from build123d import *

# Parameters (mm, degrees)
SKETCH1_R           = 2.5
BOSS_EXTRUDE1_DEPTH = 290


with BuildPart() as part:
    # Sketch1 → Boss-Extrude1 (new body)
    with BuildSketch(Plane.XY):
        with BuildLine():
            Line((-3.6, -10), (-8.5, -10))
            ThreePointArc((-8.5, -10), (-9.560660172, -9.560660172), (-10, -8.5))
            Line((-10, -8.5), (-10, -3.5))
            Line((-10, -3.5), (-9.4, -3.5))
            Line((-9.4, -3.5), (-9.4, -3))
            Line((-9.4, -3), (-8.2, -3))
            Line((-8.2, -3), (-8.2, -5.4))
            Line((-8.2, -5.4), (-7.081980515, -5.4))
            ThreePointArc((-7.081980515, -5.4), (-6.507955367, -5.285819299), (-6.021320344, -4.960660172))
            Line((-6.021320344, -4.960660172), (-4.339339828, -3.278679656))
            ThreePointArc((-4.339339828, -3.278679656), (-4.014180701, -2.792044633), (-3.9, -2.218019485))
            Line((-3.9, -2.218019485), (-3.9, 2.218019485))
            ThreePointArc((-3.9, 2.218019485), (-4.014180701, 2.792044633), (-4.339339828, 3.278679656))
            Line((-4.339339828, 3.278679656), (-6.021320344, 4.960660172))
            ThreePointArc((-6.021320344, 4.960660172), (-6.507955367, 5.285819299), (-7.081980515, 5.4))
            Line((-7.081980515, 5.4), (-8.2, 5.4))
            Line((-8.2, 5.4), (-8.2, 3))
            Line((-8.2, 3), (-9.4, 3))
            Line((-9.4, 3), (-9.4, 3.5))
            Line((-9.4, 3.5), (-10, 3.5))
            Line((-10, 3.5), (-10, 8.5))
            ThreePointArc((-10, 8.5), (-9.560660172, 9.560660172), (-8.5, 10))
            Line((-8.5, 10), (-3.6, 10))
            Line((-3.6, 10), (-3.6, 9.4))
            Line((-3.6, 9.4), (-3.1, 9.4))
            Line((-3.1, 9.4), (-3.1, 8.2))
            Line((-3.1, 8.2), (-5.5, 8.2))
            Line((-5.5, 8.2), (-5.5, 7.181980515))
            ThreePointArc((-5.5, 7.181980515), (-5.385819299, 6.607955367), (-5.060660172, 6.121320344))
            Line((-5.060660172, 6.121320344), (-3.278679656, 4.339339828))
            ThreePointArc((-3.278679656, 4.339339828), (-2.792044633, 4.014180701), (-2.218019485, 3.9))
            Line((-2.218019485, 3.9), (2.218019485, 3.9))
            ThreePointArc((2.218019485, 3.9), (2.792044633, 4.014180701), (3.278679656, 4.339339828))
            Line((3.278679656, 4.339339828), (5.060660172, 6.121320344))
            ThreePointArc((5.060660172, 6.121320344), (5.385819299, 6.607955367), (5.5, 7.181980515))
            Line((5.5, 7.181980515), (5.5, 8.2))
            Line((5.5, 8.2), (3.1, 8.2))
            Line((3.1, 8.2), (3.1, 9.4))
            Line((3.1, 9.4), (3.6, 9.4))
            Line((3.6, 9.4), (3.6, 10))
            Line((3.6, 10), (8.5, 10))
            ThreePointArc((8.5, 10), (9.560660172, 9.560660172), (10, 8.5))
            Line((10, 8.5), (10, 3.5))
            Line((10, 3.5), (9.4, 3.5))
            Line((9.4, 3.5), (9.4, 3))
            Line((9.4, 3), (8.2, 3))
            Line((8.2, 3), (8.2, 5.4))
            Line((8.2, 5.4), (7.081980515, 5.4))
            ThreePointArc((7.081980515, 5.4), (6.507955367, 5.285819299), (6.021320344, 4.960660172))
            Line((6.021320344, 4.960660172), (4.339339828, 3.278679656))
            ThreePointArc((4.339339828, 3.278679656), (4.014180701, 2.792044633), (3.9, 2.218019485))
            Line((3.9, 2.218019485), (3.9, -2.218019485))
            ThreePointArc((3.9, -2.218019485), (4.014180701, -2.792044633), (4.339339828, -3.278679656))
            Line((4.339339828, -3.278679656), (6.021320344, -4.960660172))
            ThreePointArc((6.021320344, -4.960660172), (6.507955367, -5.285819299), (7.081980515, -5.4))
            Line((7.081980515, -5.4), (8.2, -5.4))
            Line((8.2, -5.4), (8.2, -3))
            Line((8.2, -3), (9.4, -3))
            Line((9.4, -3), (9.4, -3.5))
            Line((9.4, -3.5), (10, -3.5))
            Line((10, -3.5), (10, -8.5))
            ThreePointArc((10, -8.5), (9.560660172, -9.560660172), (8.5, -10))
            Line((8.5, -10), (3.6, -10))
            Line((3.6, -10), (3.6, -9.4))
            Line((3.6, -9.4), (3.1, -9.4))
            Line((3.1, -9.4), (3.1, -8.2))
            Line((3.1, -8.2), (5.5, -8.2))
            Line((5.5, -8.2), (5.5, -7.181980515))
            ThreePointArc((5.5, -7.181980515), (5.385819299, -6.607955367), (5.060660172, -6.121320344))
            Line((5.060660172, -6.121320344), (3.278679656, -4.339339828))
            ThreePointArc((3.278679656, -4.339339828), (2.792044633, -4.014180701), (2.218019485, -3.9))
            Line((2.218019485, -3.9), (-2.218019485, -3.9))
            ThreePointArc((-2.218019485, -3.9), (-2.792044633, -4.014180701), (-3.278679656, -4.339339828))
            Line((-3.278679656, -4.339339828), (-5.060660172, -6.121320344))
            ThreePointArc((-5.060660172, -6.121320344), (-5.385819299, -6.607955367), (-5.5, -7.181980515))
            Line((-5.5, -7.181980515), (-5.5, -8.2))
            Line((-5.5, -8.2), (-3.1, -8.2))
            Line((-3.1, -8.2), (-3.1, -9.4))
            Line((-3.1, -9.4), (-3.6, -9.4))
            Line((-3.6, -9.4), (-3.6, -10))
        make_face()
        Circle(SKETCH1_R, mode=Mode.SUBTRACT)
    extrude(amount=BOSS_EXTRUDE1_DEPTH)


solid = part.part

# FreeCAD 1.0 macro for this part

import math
import FreeCAD as App
import Part
import Sketcher
from FreeCAD import Vector
Q = App.Units.Quantity

doc = App.newDocument("Part")
body = doc.addObject("PartDesign::Body", "Body")

# Sketch on XY plane
sketch1 = doc.addObject("Sketcher::SketchObject", "Sketch")
body.addObject(sketch1)
sketch1.AttachmentSupport = (doc.XY_Plane, [""])
sketch1.MapMode = "FlatFace"
sketch1.addGeometry([
    Part.LineSegment(Vector(-8.5, -10, 0), Vector(-3.6, -10, 0)),  # 0
    Part.LineSegment(Vector(-3.6, -10, 0), Vector(-3.6, -9.4, 0)),  # 1
    Part.LineSegment(Vector(-3.6, -9.4, 0), Vector(-3.1, -9.4, 0)),  # 2
    Part.LineSegment(Vector(-3.1, -9.4, 0), Vector(-3.1, -8.2, 0)),  # 3
    Part.LineSegment(Vector(-3.1, -8.2, 0), Vector(-5.5, -8.2, 0)),  # 4
    Part.LineSegment(Vector(-5.5, -8.2, 0), Vector(-5.5, -7.2, 0)),  # 5
    Part.ArcOfCircle(Part.Circle(Vector(-4, -7.2, 0), Vector(0, 0, 1), 1.5), math.radians(135), math.radians(180)),  # 6
    Part.LineSegment(Vector(-5.1, -6.1, 0), Vector(-3.3, -4.3, 0)),  # 7
    Part.ArcOfCircle(Part.Circle(Vector(-2.2, -5.4, 0), Vector(0, 0, 1), 1.5), math.radians(90), math.radians(135)),  # 8
    Part.LineSegment(Vector(-2.2, -3.9, 0), Vector(2.2, -3.9, 0)),  # 9
    Part.ArcOfCircle(Part.Circle(Vector(2.2, -5.4, 0), Vector(0, 0, 1), 1.5), math.radians(45), math.radians(90)),  # 10
    Part.LineSegment(Vector(3.3, -4.3, 0), Vector(5.1, -6.1, 0)),  # 11
    Part.ArcOfCircle(Part.Circle(Vector(4, -7.2, 0), Vector(0, 0, 1), 1.5), math.radians(0), math.radians(45)),  # 12
    Part.LineSegment(Vector(5.5, -7.2, 0), Vector(5.5, -8.2, 0)),  # 13
    Part.LineSegment(Vector(5.5, -8.2, 0), Vector(3.1, -8.2, 0)),  # 14
    Part.LineSegment(Vector(3.1, -8.2, 0), Vector(3.1, -9.4, 0)),  # 15
    Part.LineSegment(Vector(3.1, -9.4, 0), Vector(3.6, -9.4, 0)),  # 16
    Part.LineSegment(Vector(3.6, -9.4, 0), Vector(3.6, -10, 0)),  # 17
    Part.LineSegment(Vector(3.6, -10, 0), Vector(8.5, -10, 0)),  # 18
    Part.ArcOfCircle(Part.Circle(Vector(8.5, -8.5, 0), Vector(0, 0, 1), 1.5), math.radians(-90), math.radians(0)),  # 19
    Part.LineSegment(Vector(10, -8.5, 0), Vector(10, -3.5, 0)),  # 20
    Part.LineSegment(Vector(10, -3.5, 0), Vector(9.4, -3.5, 0)),  # 21
    Part.LineSegment(Vector(9.4, -3.5, 0), Vector(9.4, -3, 0)),  # 22
    Part.LineSegment(Vector(9.4, -3, 0), Vector(8.2, -3, 0)),  # 23
    Part.LineSegment(Vector(8.2, -3, 0), Vector(8.2, -5.4, 0)),  # 24
    Part.LineSegment(Vector(8.2, -5.4, 0), Vector(7.1, -5.4, 0)),  # 25
    Part.ArcOfCircle(Part.Circle(Vector(7.1, -3.9, 0), Vector(0, 0, 1), 1.5), math.radians(-135), math.radians(-90)),  # 26
    Part.LineSegment(Vector(6, -5, 0), Vector(4.3, -3.3, 0)),  # 27
    Part.ArcOfCircle(Part.Circle(Vector(5.4, -2.2, 0), Vector(0, 0, 1), 1.5), math.radians(180), math.radians(225)),  # 28
    Part.LineSegment(Vector(3.9, -2.2, 0), Vector(3.9, 2.2, 0)),  # 29
    Part.ArcOfCircle(Part.Circle(Vector(5.4, 2.2, 0), Vector(0, 0, 1), 1.5), math.radians(135), math.radians(180)),  # 30
    Part.LineSegment(Vector(4.3, 3.3, 0), Vector(6, 5, 0)),  # 31
    Part.ArcOfCircle(Part.Circle(Vector(7.1, 3.9, 0), Vector(0, 0, 1), 1.5), math.radians(90), math.radians(135)),  # 32
    Part.LineSegment(Vector(7.1, 5.4, 0), Vector(8.2, 5.4, 0)),  # 33
    Part.LineSegment(Vector(8.2, 5.4, 0), Vector(8.2, 3, 0)),  # 34
    Part.LineSegment(Vector(8.2, 3, 0), Vector(9.4, 3, 0)),  # 35
    Part.LineSegment(Vector(9.4, 3, 0), Vector(9.4, 3.5, 0)),  # 36
    Part.LineSegment(Vector(9.4, 3.5, 0), Vector(10, 3.5, 0)),  # 37
    Part.LineSegment(Vector(10, 3.5, 0), Vector(10, 8.5, 0)),  # 38
    Part.ArcOfCircle(Part.Circle(Vector(8.5, 8.5, 0), Vector(0, 0, 1), 1.5), math.radians(0), math.radians(90)),  # 39
    Part.LineSegment(Vector(8.5, 10, 0), Vector(3.6, 10, 0)),  # 40
    Part.LineSegment(Vector(3.6, 10, 0), Vector(3.6, 9.4, 0)),  # 41
    Part.LineSegment(Vector(3.6, 9.4, 0), Vector(3.1, 9.4, 0)),  # 42
    Part.LineSegment(Vector(3.1, 9.4, 0), Vector(3.1, 8.2, 0)),  # 43
    Part.LineSegment(Vector(3.1, 8.2, 0), Vector(5.5, 8.2, 0)),  # 44
    Part.LineSegment(Vector(5.5, 8.2, 0), Vector(5.5, 7.2, 0)),  # 45
    Part.ArcOfCircle(Part.Circle(Vector(4, 7.2, 0), Vector(0, 0, 1), 1.5), math.radians(-45), math.radians(0)),  # 46
    Part.LineSegment(Vector(5.1, 6.1, 0), Vector(3.3, 4.3, 0)),  # 47
    Part.ArcOfCircle(Part.Circle(Vector(2.2, 5.4, 0), Vector(0, 0, 1), 1.5), math.radians(-90), math.radians(-45)),  # 48
    Part.LineSegment(Vector(2.2, 3.9, 0), Vector(-2.2, 3.9, 0)),  # 49
    Part.ArcOfCircle(Part.Circle(Vector(-2.2, 5.4, 0), Vector(0, 0, 1), 1.5), math.radians(-135), math.radians(-90)),  # 50
    Part.LineSegment(Vector(-3.3, 4.3, 0), Vector(-5.1, 6.1, 0)),  # 51
    Part.ArcOfCircle(Part.Circle(Vector(-4, 7.2, 0), Vector(0, 0, 1), 1.5), math.radians(180), math.radians(225)),  # 52
    Part.LineSegment(Vector(-5.5, 7.2, 0), Vector(-5.5, 8.2, 0)),  # 53
    Part.LineSegment(Vector(-5.5, 8.2, 0), Vector(-3.1, 8.2, 0)),  # 54
    Part.LineSegment(Vector(-3.1, 8.2, 0), Vector(-3.1, 9.4, 0)),  # 55
    Part.LineSegment(Vector(-3.1, 9.4, 0), Vector(-3.6, 9.4, 0)),  # 56
    Part.LineSegment(Vector(-3.6, 9.4, 0), Vector(-3.6, 10, 0)),  # 57
    Part.LineSegment(Vector(-3.6, 10, 0), Vector(-8.5, 10, 0)),  # 58
    Part.ArcOfCircle(Part.Circle(Vector(-8.5, 8.5, 0), Vector(0, 0, 1), 1.5), math.radians(90), math.radians(180)),  # 59
    Part.LineSegment(Vector(-10, 8.5, 0), Vector(-10, 3.5, 0)),  # 60
    Part.LineSegment(Vector(-10, 3.5, 0), Vector(-9.4, 3.5, 0)),  # 61
    Part.LineSegment(Vector(-9.4, 3.5, 0), Vector(-9.4, 3, 0)),  # 62
    Part.LineSegment(Vector(-9.4, 3, 0), Vector(-8.2, 3, 0)),  # 63
    Part.LineSegment(Vector(-8.2, 3, 0), Vector(-8.2, 5.4, 0)),  # 64
    Part.LineSegment(Vector(-8.2, 5.4, 0), Vector(-7.1, 5.4, 0)),  # 65
    Part.ArcOfCircle(Part.Circle(Vector(-7.1, 3.9, 0), Vector(0, 0, 1), 1.5), math.radians(45), math.radians(90)),  # 66
    Part.LineSegment(Vector(-6, 5, 0), Vector(-4.3, 3.3, 0)),  # 67
    Part.ArcOfCircle(Part.Circle(Vector(-5.4, 2.2, 0), Vector(0, 0, 1), 1.5), math.radians(0), math.radians(45)),  # 68
    Part.LineSegment(Vector(-3.9, 2.2, 0), Vector(-3.9, -2.2, 0)),  # 69
    Part.ArcOfCircle(Part.Circle(Vector(-5.4, -2.2, 0), Vector(0, 0, 1), 1.5), math.radians(-45), math.radians(0)),  # 70
    Part.LineSegment(Vector(-4.3, -3.3, 0), Vector(-6, -5, 0)),  # 71
    Part.ArcOfCircle(Part.Circle(Vector(-7.1, -3.9, 0), Vector(0, 0, 1), 1.5), math.radians(-90), math.radians(-45)),  # 72
    Part.LineSegment(Vector(-7.1, -5.4, 0), Vector(-8.2, -5.4, 0)),  # 73
    Part.LineSegment(Vector(-8.2, -5.4, 0), Vector(-8.2, -3, 0)),  # 74
    Part.LineSegment(Vector(-8.2, -3, 0), Vector(-9.4, -3, 0)),  # 75
    Part.LineSegment(Vector(-9.4, -3, 0), Vector(-9.4, -3.5, 0)),  # 76
    Part.LineSegment(Vector(-9.4, -3.5, 0), Vector(-10, -3.5, 0)),  # 77
    Part.LineSegment(Vector(-10, -3.5, 0), Vector(-10, -8.5, 0)),  # 78
    Part.ArcOfCircle(Part.Circle(Vector(-8.5, -8.5, 0), Vector(0, 0, 1), 1.5), math.radians(180), math.radians(270)),  # 79
    Part.Circle(Vector(0, 0, 0), Vector(0, 0, 1), 2.5),  # 80
], False)
sketch1.addConstraint([
    Sketcher.Constraint("Coincident", 0, 2, 1, 1),
    Sketcher.Constraint("Coincident", 1, 2, 2, 1),
    Sketcher.Constraint("Coincident", 2, 2, 3, 1),
    Sketcher.Constraint("Coincident", 3, 2, 4, 1),
    Sketcher.Constraint("Coincident", 4, 2, 5, 1),
    Sketcher.Constraint("Tangent", 5, 2, 6, 2),
    Sketcher.Constraint("Tangent", 6, 1, 7, 1),
    Sketcher.Constraint("Tangent", 7, 2, 8, 2),
    Sketcher.Constraint("Tangent", 8, 1, 9, 1),
    Sketcher.Constraint("Tangent", 9, 2, 10, 2),
    Sketcher.Constraint("Tangent", 10, 1, 11, 1),
    Sketcher.Constraint("Tangent", 11, 2, 12, 2),
    Sketcher.Constraint("Tangent", 12, 1, 13, 1),
    Sketcher.Constraint("Coincident", 13, 2, 14, 1),
    Sketcher.Constraint("Coincident", 14, 2, 15, 1),
    Sketcher.Constraint("Coincident", 15, 2, 16, 1),
    Sketcher.Constraint("Coincident", 16, 2, 17, 1),
    Sketcher.Constraint("Coincident", 17, 2, 18, 1),
    Sketcher.Constraint("Tangent", 18, 2, 19, 1),
    Sketcher.Constraint("Tangent", 19, 2, 20, 1),
    Sketcher.Constraint("Coincident", 20, 2, 21, 1),
    Sketcher.Constraint("Coincident", 21, 2, 22, 1),
    Sketcher.Constraint("Coincident", 22, 2, 23, 1),
    Sketcher.Constraint("Coincident", 23, 2, 24, 1),
    Sketcher.Constraint("Coincident", 24, 2, 25, 1),
    Sketcher.Constraint("Tangent", 25, 2, 26, 2),
    Sketcher.Constraint("Tangent", 26, 1, 27, 1),
    Sketcher.Constraint("Tangent", 27, 2, 28, 2),
    Sketcher.Constraint("Tangent", 28, 1, 29, 1),
    Sketcher.Constraint("Tangent", 29, 2, 30, 2),
    Sketcher.Constraint("Tangent", 30, 1, 31, 1),
    Sketcher.Constraint("Tangent", 31, 2, 32, 2),
    Sketcher.Constraint("Tangent", 32, 1, 33, 1),
    Sketcher.Constraint("Coincident", 33, 2, 34, 1),
    Sketcher.Constraint("Coincident", 34, 2, 35, 1),
    Sketcher.Constraint("Coincident", 35, 2, 36, 1),
    Sketcher.Constraint("Coincident", 36, 2, 37, 1),
    Sketcher.Constraint("Coincident", 37, 2, 38, 1),
    Sketcher.Constraint("Tangent", 38, 2, 39, 1),
    Sketcher.Constraint("Tangent", 39, 2, 40, 1),
    Sketcher.Constraint("Coincident", 40, 2, 41, 1),
    Sketcher.Constraint("Coincident", 41, 2, 42, 1),
    Sketcher.Constraint("Coincident", 42, 2, 43, 1),
    Sketcher.Constraint("Coincident", 43, 2, 44, 1),
    Sketcher.Constraint("Coincident", 44, 2, 45, 1),
    Sketcher.Constraint("Tangent", 45, 2, 46, 2),
    Sketcher.Constraint("Tangent", 46, 1, 47, 1),
    Sketcher.Constraint("Tangent", 47, 2, 48, 2),
    Sketcher.Constraint("Tangent", 48, 1, 49, 1),
    Sketcher.Constraint("Tangent", 49, 2, 50, 2),
    Sketcher.Constraint("Tangent", 50, 1, 51, 1),
    Sketcher.Constraint("Tangent", 51, 2, 52, 2),
    Sketcher.Constraint("Tangent", 52, 1, 53, 1),
    Sketcher.Constraint("Coincident", 53, 2, 54, 1),
    Sketcher.Constraint("Coincident", 54, 2, 55, 1),
    Sketcher.Constraint("Coincident", 55, 2, 56, 1),
    Sketcher.Constraint("Coincident", 56, 2, 57, 1),
    Sketcher.Constraint("Coincident", 57, 2, 58, 1),
    Sketcher.Constraint("Tangent", 58, 2, 59, 1),
    Sketcher.Constraint("Tangent", 59, 2, 60, 1),
    Sketcher.Constraint("Coincident", 60, 2, 61, 1),
    Sketcher.Constraint("Coincident", 61, 2, 62, 1),
    Sketcher.Constraint("Coincident", 62, 2, 63, 1),
    Sketcher.Constraint("Coincident", 63, 2, 64, 1),
    Sketcher.Constraint("Coincident", 64, 2, 65, 1),
    Sketcher.Constraint("Tangent", 65, 2, 66, 2),
    Sketcher.Constraint("Tangent", 66, 1, 67, 1),
    Sketcher.Constraint("Tangent", 67, 2, 68, 2),
    Sketcher.Constraint("Tangent", 68, 1, 69, 1),
    Sketcher.Constraint("Tangent", 69, 2, 70, 2),
    Sketcher.Constraint("Tangent", 70, 1, 71, 1),
    Sketcher.Constraint("Tangent", 71, 2, 72, 2),
    Sketcher.Constraint("Tangent", 72, 1, 73, 1),
    Sketcher.Constraint("Coincident", 73, 2, 74, 1),
    Sketcher.Constraint("Coincident", 74, 2, 75, 1),
    Sketcher.Constraint("Coincident", 75, 2, 76, 1),
    Sketcher.Constraint("Coincident", 76, 2, 77, 1),
    Sketcher.Constraint("Coincident", 77, 2, 78, 1),
    Sketcher.Constraint("Tangent", 78, 2, 79, 1),
    Sketcher.Constraint("Tangent", 79, 2, 0, 1),
    Sketcher.Constraint("Horizontal", 0),
    Sketcher.Constraint("Vertical", 1),
    Sketcher.Constraint("Horizontal", 2),
    Sketcher.Constraint("Vertical", 3),
    Sketcher.Constraint("Horizontal", 4),
    Sketcher.Constraint("Vertical", 5),
    Sketcher.Constraint("Horizontal", 9),
    Sketcher.Constraint("Vertical", 13),
    Sketcher.Constraint("Horizontal", 14),
    Sketcher.Constraint("Vertical", 15),
    Sketcher.Constraint("Horizontal", 16),
    Sketcher.Constraint("Vertical", 17),
    Sketcher.Constraint("Horizontal", 18),
    Sketcher.Constraint("Vertical", 20),
    Sketcher.Constraint("Horizontal", 21),
    Sketcher.Constraint("Vertical", 22),
    Sketcher.Constraint("Horizontal", 23),
    Sketcher.Constraint("Vertical", 24),
    Sketcher.Constraint("Horizontal", 25),
    Sketcher.Constraint("Vertical", 29),
    Sketcher.Constraint("Horizontal", 33),
    Sketcher.Constraint("Vertical", 34),
    Sketcher.Constraint("Horizontal", 35),
    Sketcher.Constraint("Vertical", 36),
    Sketcher.Constraint("Horizontal", 37),
    Sketcher.Constraint("Vertical", 38),
    Sketcher.Constraint("Horizontal", 40),
    Sketcher.Constraint("Vertical", 41),
    Sketcher.Constraint("Horizontal", 42),
    Sketcher.Constraint("Vertical", 43),
    Sketcher.Constraint("Horizontal", 44),
    Sketcher.Constraint("Vertical", 45),
    Sketcher.Constraint("Horizontal", 49),
    Sketcher.Constraint("Vertical", 53),
    Sketcher.Constraint("Horizontal", 54),
    Sketcher.Constraint("Vertical", 55),
    Sketcher.Constraint("Horizontal", 56),
    Sketcher.Constraint("Vertical", 57),
    Sketcher.Constraint("Horizontal", 58),
    Sketcher.Constraint("Vertical", 60),
    Sketcher.Constraint("Horizontal", 61),
    Sketcher.Constraint("Vertical", 62),
    Sketcher.Constraint("Horizontal", 63),
    Sketcher.Constraint("Vertical", 64),
    Sketcher.Constraint("Horizontal", 65),
    Sketcher.Constraint("Vertical", 69),
    Sketcher.Constraint("Horizontal", 73),
    Sketcher.Constraint("Vertical", 74),
    Sketcher.Constraint("Horizontal", 75),
    Sketcher.Constraint("Vertical", 76),
    Sketcher.Constraint("Horizontal", 77),
    Sketcher.Constraint("Vertical", 78),
    Sketcher.Constraint("Coincident", 80, 3, -1, 1),
    Sketcher.Constraint("Equal", 6, 8),
    Sketcher.Constraint("Equal", 8, 10),
    Sketcher.Constraint("Equal", 10, 12),
    Sketcher.Constraint("Equal", 12, 19),
    Sketcher.Constraint("Equal", 19, 26),
    Sketcher.Constraint("Equal", 26, 28),
    Sketcher.Constraint("Equal", 28, 30),
    Sketcher.Constraint("Equal", 30, 32),
    Sketcher.Constraint("Equal", 32, 39),
    Sketcher.Constraint("Equal", 39, 46),
    Sketcher.Constraint("Equal", 46, 48),
    Sketcher.Constraint("Equal", 48, 50),
    Sketcher.Constraint("Equal", 50, 52),
    Sketcher.Constraint("Equal", 52, 59),
    Sketcher.Constraint("Equal", 59, 66),
    Sketcher.Constraint("Equal", 66, 68),
    Sketcher.Constraint("Equal", 68, 70),
    Sketcher.Constraint("Equal", 70, 72),
    Sketcher.Constraint("Equal", 72, 79),
    Sketcher.Constraint("Symmetric", 6, 3, 46, 3, -1, 1),
    Sketcher.Constraint("Symmetric", 8, 3, 48, 3, -1, 1),
    Sketcher.Constraint("Symmetric", 12, 3, 52, 3, -1, 1),
    Sketcher.Constraint("Symmetric", 19, 3, 59, 3, -1, 1),
    Sketcher.Constraint("Symmetric", 26, 3, 66, 3, -1, 1),
    Sketcher.Constraint("Symmetric", 28, 3, 68, 3, -1, 1),
    Sketcher.Constraint("Symmetric", 32, 3, 72, 3, -1, 1),
    Sketcher.Constraint("Symmetric", 39, 3, 79, 3, -1, 1),
    Sketcher.Constraint("Symmetric", 1, 2, 41, 2, -1, 1),
    Sketcher.Constraint("Symmetric", 3, 2, 43, 2, -1, 1),
    Sketcher.Constraint("Symmetric", 14, 2, 54, 2, -1, 1),
    Sketcher.Constraint("Symmetric", 16, 2, 56, 2, -1, 1),
    Sketcher.Constraint("Symmetric", 21, 2, 61, 2, -1, 1),
    Sketcher.Constraint("Symmetric", 23, 2, 63, 2, -1, 1),
    Sketcher.Constraint("Symmetric", 34, 2, 74, 2, -1, 1),
    Sketcher.Constraint("Symmetric", 36, 2, 76, 2, -1, 1),
    Sketcher.Constraint("Symmetric", 6, 3, 12, 3, -2),
    Sketcher.Constraint("Symmetric", 39, 3, 59, 3, -2),
    Sketcher.Constraint("Symmetric", 32, 3, 66, 3, -2),
    Sketcher.Constraint("Symmetric", 3, 2, 14, 2, -2),
    Sketcher.Constraint("Symmetric", 1, 2, 16, 2, -2),
    Sketcher.Constraint("Symmetric", 36, 2, 61, 2, -2),
    Sketcher.Constraint("Symmetric", 34, 2, 63, 2, -2),
    Sketcher.Constraint("Perpendicular", 7, 11),
    Sketcher.Constraint("Parallel", 11, 27),
    Sketcher.Constraint("Perpendicular", 27, 31),
    Sketcher.Constraint("Perpendicular", 47, 51),
    Sketcher.Constraint("Perpendicular", 67, 71),
    Sketcher.Constraint("Horizontal", 30, 3, 68, 3),
    Sketcher.Constraint("Horizontal", 72, 3, 8, 1),
    Sketcher.Constraint("Equal", 77, 1),
    Sketcher.Constraint("Equal", 75, 3),
    Sketcher.Constraint("Equal", 56, 22),
    Sketcher.Constraint("Equal", 54, 24),
    Sketcher.Constraint("Equal", 49, 29),
    Sketcher.Constraint("Diameter", 80, Q("5 mm")),
    Sketcher.Constraint("Radius", 6, Q("1.5 mm")),
    Sketcher.Constraint("DistanceY", 20, 1, 20, 2, Q("5 mm")),
    Sketcher.Constraint("DistanceX", 0, 1, 0, 2, Q("4.9 mm")),
    Sketcher.Constraint("DistanceX", 2, 1, 2, 2, Q("0.5 mm")),
    Sketcher.Constraint("DistanceX", 4, 2, 4, 1, Q("2.4 mm")),
    Sketcher.Constraint("DistanceX", 21, 2, 21, 1, Q("0.6 mm")),
    Sketcher.Constraint("DistanceX", 23, 2, 23, 1, Q("1.2 mm")),
    Sketcher.Constraint("DistanceX", 6, 3, -1, 1, Q("4 mm")),
    Sketcher.Constraint("DistanceY", 0, 2, -1, 1, Q("10 mm")),
    Sketcher.Constraint("DistanceX", -1, 1, 28, 3, Q("5.4 mm")),
    Sketcher.Constraint("Distance", 7, Q("2.520101 mm")),
])
pad1 = doc.addObject("PartDesign::Pad", "Pad")
body.addObject(pad1)
pad1.Profile = sketch1
pad1.Length = 290

doc.recompute()
